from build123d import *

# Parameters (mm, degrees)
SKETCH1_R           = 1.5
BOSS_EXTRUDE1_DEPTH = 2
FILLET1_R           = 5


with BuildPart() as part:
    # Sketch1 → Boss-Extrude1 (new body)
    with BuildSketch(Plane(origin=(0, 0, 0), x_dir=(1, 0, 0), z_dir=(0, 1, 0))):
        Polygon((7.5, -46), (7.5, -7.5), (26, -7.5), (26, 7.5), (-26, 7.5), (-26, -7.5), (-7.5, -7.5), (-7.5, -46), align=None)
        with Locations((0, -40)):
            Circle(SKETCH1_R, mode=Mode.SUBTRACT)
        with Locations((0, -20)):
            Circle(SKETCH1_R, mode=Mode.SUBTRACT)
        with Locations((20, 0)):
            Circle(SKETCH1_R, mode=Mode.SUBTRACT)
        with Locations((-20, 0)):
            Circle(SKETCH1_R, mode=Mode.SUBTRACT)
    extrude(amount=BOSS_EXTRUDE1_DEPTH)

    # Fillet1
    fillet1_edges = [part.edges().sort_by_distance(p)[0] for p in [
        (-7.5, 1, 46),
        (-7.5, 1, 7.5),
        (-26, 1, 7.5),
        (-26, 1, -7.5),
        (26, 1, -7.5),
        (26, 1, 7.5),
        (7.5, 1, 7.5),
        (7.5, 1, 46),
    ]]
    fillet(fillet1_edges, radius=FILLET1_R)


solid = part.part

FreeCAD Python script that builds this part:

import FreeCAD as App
import Part
import Sketcher
from FreeCAD import Vector
Q = App.Units.Quantity


def edges_at(feature, points):
    """Names of the edges that pass closest to the given points."""
    edges = feature.Shape.Edges
    near = lambda p: min(range(len(edges)), key=lambda i: edges[i].distToShape(Part.Vertex(*p))[0])
    return sorted({f"Edge{near(p) + 1}" for p in points})

doc = App.newDocument("Part")
body = doc.addObject("PartDesign::Body", "Body")

# Sketch on XZ plane
sketch1 = body.newObject("Sketcher::SketchObject", "Sketch")
sketch1.AttachmentSupport = (doc.getObject("XZ_Plane"), [""])
sketch1.MapMode = "FlatFace"
sketch1.addGeometry([
    Part.LineSegment(Vector(7.5, 46, 0), Vector(7.5, 7.5, 0)),  # 0
    Part.LineSegment(Vector(7.5, 7.5, 0), Vector(26, 7.5, 0)),  # 1
    Part.LineSegment(Vector(26, 7.5, 0), Vector(26, -7.5, 0)),  # 2
    Part.LineSegment(Vector(26, -7.5, 0), Vector(-26, -7.5, 0)),  # 3
    Part.LineSegment(Vector(-26, -7.5, 0), Vector(-26, 7.5, 0)),  # 4
    Part.LineSegment(Vector(-26, 7.5, 0), Vector(-7.5, 7.5, 0)),  # 5
    Part.LineSegment(Vector(-7.5, 7.5, 0), Vector(-7.5, 46, 0)),  # 6
    Part.LineSegment(Vector(-7.5, 46, 0), Vector(7.5, 46, 0)),  # 7
    Part.Circle(Vector(0, 40, 0), Vector(0, 0, 1), 1.5),  # 8
    Part.Circle(Vector(-20, 0, 0), Vector(0, 0, 1), 1.5),  # 9
    Part.Circle(Vector(0, 20, 0), Vector(0, 0, 1), 1.5),  # 10
    Part.Circle(Vector(20, 0, 0), Vector(0, 0, 1), 1.5),  # 11
], False)
sketch1.addConstraint([
    Sketcher.Constraint("Coincident", 0, 2, 1, 1),
    Sketcher.Constraint("Coincident", 1, 2, 2, 1),
    Sketcher.Constraint("Coincident", 2, 2, 3, 1),
    Sketcher.Constraint("Coincident", 3, 2, 4, 1),
    Sketcher.Constraint("Coincident", 4, 2, 5, 1),
    Sketcher.Constraint("Coincident", 5, 2, 6, 1),
    Sketcher.Constraint("Coincident", 6, 2, 7, 1),
    Sketcher.Constraint("Coincident", 7, 2, 0, 1),
    Sketcher.Constraint("Vertical", 0),
    Sketcher.Constraint("Horizontal", 1),
    Sketcher.Constraint("Vertical", 2),
    Sketcher.Constraint("Horizontal", 3),
    Sketcher.Constraint("Vertical", 4),
    Sketcher.Constraint("Horizontal", 5),
    Sketcher.Constraint("Vertical", 6),
    Sketcher.Constraint("Horizontal", 7),
    Sketcher.Constraint("Equal", 8, 9),
    Sketcher.Constraint("Equal", 9, 10),
    Sketcher.Constraint("Equal", 10, 11),
    Sketcher.Constraint("Symmetric", 9, 3, 11, 3, -1, 1),
    Sketcher.Constraint("Symmetric", 1, 2, 3, 2, -1, 1),
    Sketcher.Constraint("Symmetric", 0, 2, 5, 2, -2),
    Sketcher.Constraint("PointOnObject", 8, 3, -2),
    Sketcher.Constraint("PointOnObject", 9, 3, -1),
    Sketcher.Constraint("PointOnObject", 10, 3, -2),
    Sketcher.Constraint("Equal", 7, 2),
    Sketcher.Constraint("Diameter", 8, Q("3 mm")),
    Sketcher.Constraint("DistanceX", 3, 2, 3, 1, Q("52 mm")),
    Sketcher.Constraint("DistanceX", 7, 1, 7, 2, Q("15 mm")),
    Sketcher.Constraint("DistanceY", 0, 2, 0, 1, Q("38.5 mm")),
    Sketcher.Constraint("DistanceY", -1, 1, 8, 3, Q("40 mm")),
    Sketcher.Constraint("DistanceX", 9, 3, -1, 1, Q("20 mm")),
    Sketcher.Constraint("DistanceY", -1, 1, 10, 3, Q("20 mm")),
])
pad1 = body.newObject("PartDesign::Pad", "Pad")
pad1.Profile = sketch1
pad1.Length = 2
pad1.Reversed = True
doc.recompute()

fillet = body.newObject("PartDesign::Fillet", "Fillet")
fillet.Base = (pad1, edges_at(pad1, [
    (-7.5, 1, 46),
    (-7.5, 1, 7.5),
    (-26, 1, 7.5),
    (-26, 1, -7.5),
    (26, 1, -7.5),
    (26, 1, 7.5),
    (7.5, 1, 7.5),
    (7.5, 1, 46),
]))
fillet.Radius = 5

doc.recompute()
